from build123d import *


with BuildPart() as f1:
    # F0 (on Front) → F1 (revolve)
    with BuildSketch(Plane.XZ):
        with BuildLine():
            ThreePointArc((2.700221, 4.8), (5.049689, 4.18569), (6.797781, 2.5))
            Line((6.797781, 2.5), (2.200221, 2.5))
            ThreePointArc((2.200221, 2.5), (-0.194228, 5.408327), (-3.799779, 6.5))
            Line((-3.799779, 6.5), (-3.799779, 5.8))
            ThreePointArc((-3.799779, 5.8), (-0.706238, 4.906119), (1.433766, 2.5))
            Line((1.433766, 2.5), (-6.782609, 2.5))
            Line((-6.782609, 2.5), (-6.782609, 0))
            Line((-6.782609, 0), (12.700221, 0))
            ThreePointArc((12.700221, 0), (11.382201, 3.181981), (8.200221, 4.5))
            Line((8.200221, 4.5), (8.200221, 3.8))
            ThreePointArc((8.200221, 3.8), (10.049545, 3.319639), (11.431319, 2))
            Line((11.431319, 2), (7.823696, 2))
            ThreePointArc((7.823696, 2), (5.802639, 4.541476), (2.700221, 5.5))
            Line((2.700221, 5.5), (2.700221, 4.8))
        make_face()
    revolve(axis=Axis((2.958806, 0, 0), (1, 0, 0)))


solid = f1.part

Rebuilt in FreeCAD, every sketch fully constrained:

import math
import FreeCAD as App
import Part
import Sketcher

V = App.Vector

doc = App.newDocument("Part")
body = doc.addObject("PartDesign::Body", "Body")

# Sketch on XZ plane
sketch1 = body.newObject("Sketcher::SketchObject", "Sketch")
sketch1.AttachmentSupport = (doc.getObject("XZ_Plane"), [""])
sketch1.MapMode = "FlatFace"
sketch1.addGeometry(Part.ArcOfCircle(Part.Circle(V(2.7, 0, 0), V(0, 0, 1), 4.8), math.radians(31), math.radians(90)), False)
sketch1.addGeometry(Part.LineSegment(V(6.8, 2.5, 0), V(2.2, 2.5, 0)), False)
sketch1.addGeometry(Part.ArcOfCircle(Part.Circle(V(-3.8, 0, 0), V(0, 0, 1), 6.5), math.radians(23), math.radians(90)), False)
sketch1.addGeometry(Part.LineSegment(V(-3.8, 6.5, 0), V(-3.8, 5.8, 0)), False)
sketch1.addGeometry(Part.ArcOfCircle(Part.Circle(V(-3.8, 0, 0), V(0, 0, 1), 5.8), math.radians(26), math.radians(90)), False)
sketch1.addGeometry(Part.LineSegment(V(1.4, 2.5, 0), V(-6.8, 2.5, 0)), False)
sketch1.addGeometry(Part.LineSegment(V(-6.8, 2.5, 0), V(-6.8, 0, 0)), False)
sketch1.addGeometry(Part.LineSegment(V(-6.8, 0, 0), V(12.7, 0, 0)), False)
sketch1.addGeometry(Part.ArcOfCircle(Part.Circle(V(8.2, 0, 0), V(0, 0, 1), 4.5), math.radians(0), math.radians(90)), False)
sketch1.addGeometry(Part.LineSegment(V(8.2, 4.5, 0), V(8.2, 3.8, 0)), False)
sketch1.addGeometry(Part.ArcOfCircle(Part.Circle(V(8.2, 0, 0), V(0, 0, 1), 3.8), math.radians(32), math.radians(90)), False)
sketch1.addGeometry(Part.LineSegment(V(11.4, 2, 0), V(7.8, 2, 0)), False)
sketch1.addGeometry(Part.ArcOfCircle(Part.Circle(V(2.7, 0, 0), V(0, 0, 1), 5.5), math.radians(21), math.radians(90)), False)
sketch1.addGeometry(Part.LineSegment(V(2.7, 5.5, 0), V(2.7, 4.8, 0)), False)
sketch1.addConstraint(Sketcher.Constraint("Coincident", 0, 1, 1, 1))
sketch1.addConstraint(Sketcher.Constraint("Coincident", 1, 2, 2, 1))
sketch1.addConstraint(Sketcher.Constraint("Coincident", 2, 2, 3, 1))
sketch1.addConstraint(Sketcher.Constraint("Coincident", 3, 2, 4, 2))
sketch1.addConstraint(Sketcher.Constraint("Coincident", 4, 1, 5, 1))
sketch1.addConstraint(Sketcher.Constraint("Coincident", 5, 2, 6, 1))
sketch1.addConstraint(Sketcher.Constraint("Coincident", 6, 2, 7, 1))
sketch1.addConstraint(Sketcher.Constraint("Coincident", 7, 2, 8, 1))
sketch1.addConstraint(Sketcher.Constraint("Coincident", 8, 2, 9, 1))
sketch1.addConstraint(Sketcher.Constraint("Coincident", 9, 2, 10, 2))
sketch1.addConstraint(Sketcher.Constraint("Coincident", 10, 1, 11, 1))
sketch1.addConstraint(Sketcher.Constraint("Coincident", 11, 2, 12, 1))
sketch1.addConstraint(Sketcher.Constraint("Coincident", 12, 2, 13, 1))
sketch1.addConstraint(Sketcher.Constraint("Coincident", 13, 2, 0, 2))
sketch1.addConstraint(Sketcher.Constraint("Horizontal", 1))
sketch1.addConstraint(Sketcher.Constraint("Vertical", 3))
sketch1.addConstraint(Sketcher.Constraint("Horizontal", 5))
sketch1.addConstraint(Sketcher.Constraint("Vertical", 6))
sketch1.addConstraint(Sketcher.Constraint("Horizontal", 7))
sketch1.addConstraint(Sketcher.Constraint("Vertical", 9))
sketch1.addConstraint(Sketcher.Constraint("Horizontal", 11))
sketch1.addConstraint(Sketcher.Constraint("Vertical", 13))
sketch1.addConstraint(Sketcher.Constraint("Coincident", 4, 3, 2, 3))
sketch1.addConstraint(Sketcher.Constraint("Coincident", 10, 3, 8, 3))
sketch1.addConstraint(Sketcher.Constraint("Coincident", 12, 3, 0, 3))
sketch1.addConstraint(Sketcher.Constraint("PointOnObject", 0, 3, -1))
sketch1.addConstraint(Sketcher.Constraint("PointOnObject", 2, 3, -1))
sketch1.addConstraint(Sketcher.Constraint("PointOnObject", 8, 3, -1))
sketch1.addConstraint(Sketcher.Constraint("PointOnObject", 6, 2, -1))
sketch1.addConstraint(Sketcher.Constraint("Horizontal", 1, 2, 4, 1))
sketch1.addConstraint(Sketcher.Constraint("Vertical", 4, 3, 2, 2))
sketch1.addConstraint(Sketcher.Constraint("Vertical", 10, 3, 8, 2))
sketch1.addConstraint(Sketcher.Constraint("Vertical", 0, 3, 12, 2))
sketch1.addConstraint(Sketcher.Constraint("Equal", 3, 9))
sketch1.addConstraint(Sketcher.Constraint("Equal", 9, 13))
sketch1.addConstraint(Sketcher.Constraint("Radius", 0, 4.799999))
sketch1.addConstraint(Sketcher.Constraint("Radius", 2, 6.5))
sketch1.addConstraint(Sketcher.Constraint("Radius", 4, 5.799998))
sketch1.addConstraint(Sketcher.Constraint("Radius", 8, 4.5))
sketch1.addConstraint(Sketcher.Constraint("DistanceY", 6, 2, 6, 1, 2.5))
sketch1.addConstraint(Sketcher.Constraint("DistanceY", -1, 1, 10, 1, 2.0))
sketch1.addConstraint(Sketcher.Constraint("DistanceX", 4, 3, 8, 3, 12.0))
sketch1.addConstraint(Sketcher.Constraint("DistanceX", 12, 3, 7, 2, 9.999999))
sketch1.addConstraint(Sketcher.Constraint("DistanceX", 7, 1, 7, 2, 19.48283))
sketch1.addConstraint(Sketcher.Constraint("DistanceX", -1, 1, 0, 3, 2.700221))
revolution = body.newObject("PartDesign::Revolution", "Revolution")
revolution.Profile = sketch1
revolution.ReferenceAxis = (sketch1, ["H_Axis"])
revolution.Angle = 360

doc.recompute()
